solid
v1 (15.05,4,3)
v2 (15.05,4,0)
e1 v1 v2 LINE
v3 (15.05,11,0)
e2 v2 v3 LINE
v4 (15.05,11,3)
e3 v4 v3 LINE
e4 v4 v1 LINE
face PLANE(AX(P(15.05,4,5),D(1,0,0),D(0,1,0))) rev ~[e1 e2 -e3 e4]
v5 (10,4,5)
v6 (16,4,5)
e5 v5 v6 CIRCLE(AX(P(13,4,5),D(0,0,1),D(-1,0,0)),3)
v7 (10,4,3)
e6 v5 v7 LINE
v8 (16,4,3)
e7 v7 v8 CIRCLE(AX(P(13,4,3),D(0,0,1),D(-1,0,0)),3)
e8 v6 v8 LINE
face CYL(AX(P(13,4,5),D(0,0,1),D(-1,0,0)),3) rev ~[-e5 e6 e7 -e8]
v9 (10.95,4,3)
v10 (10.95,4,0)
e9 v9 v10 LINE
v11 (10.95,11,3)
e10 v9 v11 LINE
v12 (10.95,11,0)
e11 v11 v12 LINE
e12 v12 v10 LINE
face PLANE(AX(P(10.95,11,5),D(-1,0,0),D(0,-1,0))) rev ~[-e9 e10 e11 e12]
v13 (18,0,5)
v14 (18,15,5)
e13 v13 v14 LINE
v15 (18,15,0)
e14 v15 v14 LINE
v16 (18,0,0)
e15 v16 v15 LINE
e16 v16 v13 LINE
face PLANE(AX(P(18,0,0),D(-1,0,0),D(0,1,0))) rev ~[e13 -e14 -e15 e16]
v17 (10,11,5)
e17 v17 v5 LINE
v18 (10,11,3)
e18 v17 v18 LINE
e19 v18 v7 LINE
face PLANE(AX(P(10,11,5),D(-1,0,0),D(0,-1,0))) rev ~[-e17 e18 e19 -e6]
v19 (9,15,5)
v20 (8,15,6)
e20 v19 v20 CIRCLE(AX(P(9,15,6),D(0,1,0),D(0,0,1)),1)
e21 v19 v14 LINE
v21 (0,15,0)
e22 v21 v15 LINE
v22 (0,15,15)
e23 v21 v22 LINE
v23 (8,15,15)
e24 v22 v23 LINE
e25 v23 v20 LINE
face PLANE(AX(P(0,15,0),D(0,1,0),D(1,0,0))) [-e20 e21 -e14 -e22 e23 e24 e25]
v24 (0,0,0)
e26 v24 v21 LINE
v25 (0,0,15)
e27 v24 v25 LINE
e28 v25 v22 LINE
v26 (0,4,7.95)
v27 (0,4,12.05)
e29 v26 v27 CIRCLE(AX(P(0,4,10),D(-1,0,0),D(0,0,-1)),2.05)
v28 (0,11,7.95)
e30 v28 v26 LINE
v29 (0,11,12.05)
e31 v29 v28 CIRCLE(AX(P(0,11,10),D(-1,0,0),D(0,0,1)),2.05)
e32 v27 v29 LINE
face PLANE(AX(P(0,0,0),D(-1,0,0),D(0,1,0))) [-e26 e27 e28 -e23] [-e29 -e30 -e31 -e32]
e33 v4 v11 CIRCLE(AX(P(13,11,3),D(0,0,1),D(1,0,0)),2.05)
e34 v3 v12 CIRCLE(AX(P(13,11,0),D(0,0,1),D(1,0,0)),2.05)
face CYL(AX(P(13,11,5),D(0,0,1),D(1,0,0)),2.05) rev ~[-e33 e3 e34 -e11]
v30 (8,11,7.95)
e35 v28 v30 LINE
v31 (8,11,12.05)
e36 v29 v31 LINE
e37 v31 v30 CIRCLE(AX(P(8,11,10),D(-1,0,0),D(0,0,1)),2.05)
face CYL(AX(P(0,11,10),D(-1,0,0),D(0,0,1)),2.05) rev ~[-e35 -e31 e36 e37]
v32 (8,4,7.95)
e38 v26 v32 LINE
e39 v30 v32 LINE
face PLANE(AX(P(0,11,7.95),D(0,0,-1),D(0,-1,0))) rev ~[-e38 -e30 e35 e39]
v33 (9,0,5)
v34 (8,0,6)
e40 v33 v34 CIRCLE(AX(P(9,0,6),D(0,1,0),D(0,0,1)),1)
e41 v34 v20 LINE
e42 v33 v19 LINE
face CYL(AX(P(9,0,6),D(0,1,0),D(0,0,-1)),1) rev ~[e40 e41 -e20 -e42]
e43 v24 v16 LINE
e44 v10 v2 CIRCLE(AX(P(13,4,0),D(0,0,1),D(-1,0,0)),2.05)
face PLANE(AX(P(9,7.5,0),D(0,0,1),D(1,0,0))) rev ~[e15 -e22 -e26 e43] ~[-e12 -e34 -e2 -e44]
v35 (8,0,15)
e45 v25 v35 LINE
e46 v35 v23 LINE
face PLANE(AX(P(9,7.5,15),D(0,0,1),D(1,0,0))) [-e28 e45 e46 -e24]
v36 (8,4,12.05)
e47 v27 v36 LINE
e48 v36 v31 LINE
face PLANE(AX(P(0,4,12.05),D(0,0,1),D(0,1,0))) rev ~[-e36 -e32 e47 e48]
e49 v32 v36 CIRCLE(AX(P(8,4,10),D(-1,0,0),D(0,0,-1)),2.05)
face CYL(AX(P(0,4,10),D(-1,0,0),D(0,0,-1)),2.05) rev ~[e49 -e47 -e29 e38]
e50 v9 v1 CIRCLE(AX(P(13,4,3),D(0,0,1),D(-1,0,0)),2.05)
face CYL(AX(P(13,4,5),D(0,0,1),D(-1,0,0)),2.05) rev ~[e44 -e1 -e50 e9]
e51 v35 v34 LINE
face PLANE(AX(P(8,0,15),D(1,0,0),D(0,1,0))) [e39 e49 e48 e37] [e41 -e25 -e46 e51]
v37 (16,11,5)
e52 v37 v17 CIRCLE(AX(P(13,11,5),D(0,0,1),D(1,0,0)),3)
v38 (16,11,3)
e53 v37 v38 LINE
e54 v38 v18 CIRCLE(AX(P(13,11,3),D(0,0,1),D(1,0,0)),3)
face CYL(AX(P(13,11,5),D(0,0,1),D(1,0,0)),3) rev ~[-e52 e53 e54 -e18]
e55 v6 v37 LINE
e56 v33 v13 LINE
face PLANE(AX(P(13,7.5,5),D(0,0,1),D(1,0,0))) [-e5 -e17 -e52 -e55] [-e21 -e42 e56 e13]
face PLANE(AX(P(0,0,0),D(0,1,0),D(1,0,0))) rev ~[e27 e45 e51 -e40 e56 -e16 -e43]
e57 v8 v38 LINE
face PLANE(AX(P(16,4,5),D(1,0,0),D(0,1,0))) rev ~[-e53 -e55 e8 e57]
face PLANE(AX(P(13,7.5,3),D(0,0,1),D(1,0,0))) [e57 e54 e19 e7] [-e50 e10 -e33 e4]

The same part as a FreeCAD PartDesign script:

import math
import FreeCAD as App
import Part
import Sketcher


def edges_at(feature, points):
    """Names of the edges that pass closest to the given points."""
    edges = feature.Shape.Edges
    near = lambda p: min(range(len(edges)), key=lambda i: edges[i].distToShape(Part.Vertex(*p))[0])
    return sorted({f"Edge{near(p) + 1}" for p in points})

doc = App.newDocument("Part")
body = doc.addObject("PartDesign::Body", "Body")

sketch1 = body.newObject("Sketcher::SketchObject", "Sketch")
sketch1.AttachmentSupport = (doc.getObject("XY_Plane"), [""])
sketch1.MapMode = "FlatFace"
sketch1.addGeometry([
    Part.LineSegment(App.Vector(0, 15, 0), App.Vector(0, 0, 0)),
    Part.LineSegment(App.Vector(0, 0, 0), App.Vector(18, 0, 0)),
    Part.LineSegment(App.Vector(18, 0, 0), App.Vector(18, 15, 0)),
    Part.LineSegment(App.Vector(18, 15, 0), App.Vector(0, 15, 0)),
], False)
sketch1.addConstraint([
    Sketcher.Constraint("Coincident", 0, 2, 1, 1),
    Sketcher.Constraint("Coincident", 1, 2, 2, 1),
    Sketcher.Constraint("Coincident", 2, 2, 3, 1),
    Sketcher.Constraint("Coincident", 3, 2, 0, 1),
    Sketcher.Constraint("Vertical", 0),
    Sketcher.Constraint("Horizontal", 1),
    Sketcher.Constraint("Vertical", 2),
    Sketcher.Constraint("Horizontal", 3),
    Sketcher.Constraint("Coincident", 0, 2, -1, 1),
    Sketcher.Constraint("DistanceX", 1, 1, 1, 2, 18.0),
    Sketcher.Constraint("DistanceY", 0, 2, 0, 1, 15.0),
])
pad1 = body.newObject("PartDesign::Pad", "Pad")
pad1.Profile = sketch1
pad1.Length = 15

sketch2 = body.newObject("Sketcher::SketchObject", "Sketch001")
sketch2.AttachmentSupport = (doc.getObject("YZ_Plane"), [""])
sketch2.MapMode = "FlatFace"
sketch2.addGeometry([
    Part.LineSegment(App.Vector(11, 8, 0), App.Vector(4, 8, 0)),
    Part.ArcOfCircle(Part.Circle(App.Vector(4, 10, 0), App.Vector(0, 0, 1), 2), math.radians(90), math.radians(270)),
    Part.LineSegment(App.Vector(4, 12.1, 0), App.Vector(11, 12.1, 0)),
    Part.ArcOfCircle(Part.Circle(App.Vector(11, 10, 0), App.Vector(0, 0, 1), 2), math.radians(-90), math.radians(90)),
], False)
sketch2.addConstraint([
    Sketcher.Constraint("Tangent", 0, 2, 1, 2),
    Sketcher.Constraint("Tangent", 1, 1, 2, 1),
    Sketcher.Constraint("Tangent", 2, 2, 3, 2),
    Sketcher.Constraint("Tangent", 3, 1, 0, 1),
    Sketcher.Constraint("Horizontal", 0),
    Sketcher.Constraint("Horizontal", 2),
    Sketcher.Constraint("DistanceX", 0, 2, 0, 1, 7.0),
    Sketcher.Constraint("Radius", 1, 2.05),
    Sketcher.Constraint("DistanceX", -1, 1, 1, 3, 4.0),
    Sketcher.Constraint("DistanceY", -1, 1, 1, 3, 10.0),
])
pocket1 = body.newObject("PartDesign::Pocket", "Pocket")
pocket1.Profile = sketch2
pocket1.Length = 25
pocket1.Reversed = True

sketch3 = body.newObject("Sketcher::SketchObject", "Sketch002")
sketch3.AttachmentSupport = (doc.getObject("XY_Plane"), [""])
sketch3.MapMode = "FlatFace"
sketch3.AttachmentOffset = App.Placement(App.Vector(0, 0, 15), App.Rotation())
sketch3.addGeometry([
    Part.LineSegment(App.Vector(8, 15, 0), App.Vector(8, 0, 0)),
    Part.LineSegment(App.Vector(8, 0, 0), App.Vector(18, 0, 0)),
    Part.LineSegment(App.Vector(18, 0, 0), App.Vector(18, 15, 0)),
    Part.LineSegment(App.Vector(18, 15, 0), App.Vector(8, 15, 0)),
], False)
sketch3.addConstraint([
    Sketcher.Constraint("Coincident", 0, 2, 1, 1),
    Sketcher.Constraint("Coincident", 1, 2, 2, 1),
    Sketcher.Constraint("Coincident", 2, 2, 3, 1),
    Sketcher.Constraint("Coincident", 3, 2, 0, 1),
    Sketcher.Constraint("Vertical", 0),
    Sketcher.Constraint("Horizontal", 1),
    Sketcher.Constraint("Vertical", 2),
    Sketcher.Constraint("Horizontal", 3),
    Sketcher.Constraint("PointOnObject", 0, 2, -1),
    Sketcher.Constraint("DistanceX", 1, 1, 1, 2, 10.0),
    Sketcher.Constraint("DistanceY", 0, 2, 0, 1, 15.0),
    Sketcher.Constraint("DistanceX", -1, 1, 0, 2, 8.0),
])
pocket2 = body.newObject("PartDesign::Pocket", "Pocket001")
pocket2.Profile = sketch3
pocket2.Length = 10

sketch4 = body.newObject("Sketcher::SketchObject", "Sketch003")
sketch4.AttachmentSupport = (doc.getObject("XY_Plane"), [""])
sketch4.MapMode = "FlatFace"
sketch4.AttachmentOffset = App.Placement(App.Vector(0, 0, 5), App.Rotation())
sketch4.addGeometry([
    Part.LineSegment(App.Vector(15.1, 4, 0), App.Vector(15.1, 11, 0)),
    Part.ArcOfCircle(Part.Circle(App.Vector(13, 11, 0), App.Vector(0, 0, 1), 2), math.radians(0), math.radians(180)),
    Part.LineSegment(App.Vector(10.9, 11, 0), App.Vector(10.9, 4, 0)),
    Part.ArcOfCircle(Part.Circle(App.Vector(13, 4, 0), App.Vector(0, 0, 1), 2), math.radians(180), math.radians(360)),
], False)
sketch4.addConstraint([
    Sketcher.Constraint("Tangent", 0, 2, 1, 1),
    Sketcher.Constraint("Tangent", 1, 2, 2, 1),
    Sketcher.Constraint("Tangent", 2, 2, 3, 1),
    Sketcher.Constraint("Tangent", 3, 2, 0, 1),
    Sketcher.Constraint("Vertical", 0),
    Sketcher.Constraint("Vertical", 2),
    Sketcher.Constraint("DistanceY", 0, 1, 0, 2, 7.0),
    Sketcher.Constraint("Radius", 1, 2.05),
    Sketcher.Constraint("DistanceX", -1, 1, 1, 3, 13.0),
    Sketcher.Constraint("DistanceY", -1, 1, 1, 3, 11.0),
])
pocket3 = body.newObject("PartDesign::Pocket", "Pocket002")
pocket3.Profile = sketch4
pocket3.Length = 25

sketch5 = body.newObject("Sketcher::SketchObject", "Sketch004")
sketch5.AttachmentSupport = (doc.getObject("XY_Plane"), [""])
sketch5.MapMode = "FlatFace"
sketch5.AttachmentOffset = App.Placement(App.Vector(0, 0, 5), App.Rotation())
sketch5.addGeometry([
    Part.LineSegment(App.Vector(16, 4, 0), App.Vector(16, 11, 0)),
    Part.ArcOfCircle(Part.Circle(App.Vector(13, 11, 0), App.Vector(0, 0, 1), 3), math.radians(0), math.radians(180)),
    Part.LineSegment(App.Vector(10, 11, 0), App.Vector(10, 4, 0)),
    Part.ArcOfCircle(Part.Circle(App.Vector(13, 4, 0), App.Vector(0, 0, 1), 3), math.radians(180), math.radians(360)),
], False)
sketch5.addConstraint([
    Sketcher.Constraint("Tangent", 0, 2, 1, 1),
    Sketcher.Constraint("Tangent", 1, 2, 2, 1),
    Sketcher.Constraint("Tangent", 2, 2, 3, 1),
    Sketcher.Constraint("Tangent", 3, 2, 0, 1),
    Sketcher.Constraint("Vertical", 0),
    Sketcher.Constraint("Vertical", 2),
    Sketcher.Constraint("Radius", 1, 3.0),
    Sketcher.Constraint("DistanceY", 0, 1, 0, 2, 7.0),
    Sketcher.Constraint("DistanceX", -1, 1, 1, 3, 13.0),
    Sketcher.Constraint("DistanceY", -1, 1, 1, 3, 11.0),
])
pocket4 = body.newObject("PartDesign::Pocket", "Pocket003")
pocket4.Profile = sketch5
pocket4.Length = 2
doc.recompute()

fillet = body.newObject("PartDesign::Fillet", "Fillet")
fillet.Base = (pocket4, edges_at(pocket4, [(8, 7.5, 5)]))
fillet.Radius = 1

doc.recompute()
